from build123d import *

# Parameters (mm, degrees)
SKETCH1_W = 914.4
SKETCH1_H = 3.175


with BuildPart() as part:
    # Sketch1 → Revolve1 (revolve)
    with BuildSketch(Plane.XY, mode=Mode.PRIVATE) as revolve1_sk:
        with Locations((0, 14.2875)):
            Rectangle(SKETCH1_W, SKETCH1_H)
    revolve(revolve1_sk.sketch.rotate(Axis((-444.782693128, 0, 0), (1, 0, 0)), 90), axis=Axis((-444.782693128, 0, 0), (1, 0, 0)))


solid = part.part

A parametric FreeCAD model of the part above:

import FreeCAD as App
import Part
import Sketcher

V = App.Vector
Q = App.Units.Quantity

doc = App.newDocument("Part")
body = doc.addObject("PartDesign::Body", "Body")

sketch1 = body.newObject("Sketcher::SketchObject", "Sketch")
sketch1.AttachmentSupport = (doc.getObject("XY_Plane"), [""])
sketch1.MapMode = "FlatFace"
sketch1.addGeometry(Part.LineSegment(V(-457.2, 15.9, 0), V(-457.2, 12.7, 0)), False)
sketch1.addGeometry(Part.LineSegment(V(-457.2, 12.7, 0), V(457.2, 12.7, 0)), False)
sketch1.addGeometry(Part.LineSegment(V(457.2, 12.7, 0), V(457.2, 15.9, 0)), False)
sketch1.addGeometry(Part.LineSegment(V(457.2, 15.9, 0), V(-457.2, 15.9, 0)), False)
sketch1.addConstraint(Sketcher.Constraint("Coincident", 0, 2, 1, 1))
sketch1.addConstraint(Sketcher.Constraint("Coincident", 1, 2, 2, 1))
sketch1.addConstraint(Sketcher.Constraint("Coincident", 2, 2, 3, 1))
sketch1.addConstraint(Sketcher.Constraint("Coincident", 3, 2, 0, 1))
sketch1.addConstraint(Sketcher.Constraint("Vertical", 0))
sketch1.addConstraint(Sketcher.Constraint("Horizontal", 1))
sketch1.addConstraint(Sketcher.Constraint("Vertical", 2))
sketch1.addConstraint(Sketcher.Constraint("Horizontal", 3))
sketch1.addConstraint(Sketcher.Constraint("DistanceX", 1, 1, 1, 2, Q("36 in")))
sketch1.addConstraint(Sketcher.Constraint("DistanceX", 0, 2, -1, 1, Q("18 in")))
sketch1.addConstraint(Sketcher.Constraint("DistanceY", -1, 1, 0, 2, Q("0.5 in")))
sketch1.addConstraint(Sketcher.Constraint("DistanceY", 0, 2, 0, 1, Q("0.125 in")))
revolution = body.newObject("PartDesign::Revolution", "Revolution")
revolution.Profile = sketch1
revolution.ReferenceAxis = (sketch1, ["H_Axis"])
revolution.Angle = 360

doc.recompute()
